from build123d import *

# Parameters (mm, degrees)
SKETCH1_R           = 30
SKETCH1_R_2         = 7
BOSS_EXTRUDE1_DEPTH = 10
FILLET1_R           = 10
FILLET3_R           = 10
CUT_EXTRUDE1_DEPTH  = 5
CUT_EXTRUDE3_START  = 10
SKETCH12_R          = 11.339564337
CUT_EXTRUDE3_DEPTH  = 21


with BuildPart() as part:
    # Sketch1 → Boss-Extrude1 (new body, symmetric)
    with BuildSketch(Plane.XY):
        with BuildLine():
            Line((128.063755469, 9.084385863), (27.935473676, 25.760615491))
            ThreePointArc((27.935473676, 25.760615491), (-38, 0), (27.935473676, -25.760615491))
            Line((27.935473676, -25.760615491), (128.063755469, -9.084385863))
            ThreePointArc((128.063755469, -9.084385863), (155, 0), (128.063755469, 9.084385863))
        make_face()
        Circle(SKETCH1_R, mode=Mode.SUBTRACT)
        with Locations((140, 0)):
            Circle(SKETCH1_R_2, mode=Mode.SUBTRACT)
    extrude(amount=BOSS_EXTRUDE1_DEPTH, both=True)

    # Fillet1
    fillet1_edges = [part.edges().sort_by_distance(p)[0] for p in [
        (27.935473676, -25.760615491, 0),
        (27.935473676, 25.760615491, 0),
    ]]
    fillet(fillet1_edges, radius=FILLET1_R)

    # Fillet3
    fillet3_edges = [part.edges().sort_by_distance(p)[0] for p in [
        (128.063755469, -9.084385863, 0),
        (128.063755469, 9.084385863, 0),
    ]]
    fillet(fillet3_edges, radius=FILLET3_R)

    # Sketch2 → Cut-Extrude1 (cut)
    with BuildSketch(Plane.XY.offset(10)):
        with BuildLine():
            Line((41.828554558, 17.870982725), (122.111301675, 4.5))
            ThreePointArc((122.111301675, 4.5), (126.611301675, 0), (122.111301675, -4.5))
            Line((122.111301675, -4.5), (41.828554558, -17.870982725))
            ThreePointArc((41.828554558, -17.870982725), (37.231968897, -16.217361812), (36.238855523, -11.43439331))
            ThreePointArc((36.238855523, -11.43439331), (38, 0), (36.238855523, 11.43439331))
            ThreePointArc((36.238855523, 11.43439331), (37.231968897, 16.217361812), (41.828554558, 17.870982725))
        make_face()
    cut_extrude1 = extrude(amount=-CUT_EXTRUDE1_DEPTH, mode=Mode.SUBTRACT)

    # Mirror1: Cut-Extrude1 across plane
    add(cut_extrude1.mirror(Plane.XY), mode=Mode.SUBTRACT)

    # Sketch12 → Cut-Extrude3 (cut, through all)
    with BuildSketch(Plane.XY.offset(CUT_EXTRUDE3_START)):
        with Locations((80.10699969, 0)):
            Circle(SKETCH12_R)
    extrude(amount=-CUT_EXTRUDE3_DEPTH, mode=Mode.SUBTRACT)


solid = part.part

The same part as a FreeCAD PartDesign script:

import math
import FreeCAD as App
import Part
import Sketcher
Q = App.Units.Quantity


def edges_at(feature, points):
    """Names of the edges that pass closest to the given points."""
    edges = feature.Shape.Edges
    near = lambda p: min(range(len(edges)), key=lambda i: edges[i].distToShape(Part.Vertex(*p))[0])
    return sorted({f"Edge{near(p) + 1}" for p in points})

doc = App.newDocument("Part")
body = doc.addObject("PartDesign::Body", "Body")

sketch1 = doc.addObject("Sketcher::SketchObject", "Sketch")
body.addObject(sketch1)
sketch1.AttachmentSupport = (doc.XY_Plane, [""])
sketch1.MapMode = "FlatFace"
sketch1.addGeometry([
    Part.LineSegment(App.Vector(128.063755, 9.084386, 0), App.Vector(27.935474, 25.760615, 0)),
    Part.ArcOfCircle(Part.Circle(App.Vector(0, 0, 0), App.Vector(0, 0, 1), 38), math.radians(42.680611), math.radians(317.319389)),
    Part.LineSegment(App.Vector(27.935474, -25.760615, 0), App.Vector(128.063755, -9.084386, 0)),
    Part.ArcOfCircle(Part.Circle(App.Vector(140, 0, 0), App.Vector(0, 0, 1), 15), math.radians(-142.726118), math.radians(142.726118)),
    Part.Circle(App.Vector(0, 0, 0), App.Vector(0, 0, 1), 30),
    Part.Circle(App.Vector(140, 0, 0), App.Vector(0, 0, 1), 7),
], False)
sketch1.addConstraint([
    Sketcher.Constraint("Coincident", 0, 2, 1, 1),
    Sketcher.Constraint("Coincident", 1, 2, 2, 1),
    Sketcher.Constraint("Coincident", 2, 2, 3, 1),
    Sketcher.Constraint("Coincident", 3, 2, 0, 1),
    Sketcher.Constraint("Coincident", 1, 3, -1, 1),
    Sketcher.Constraint("Coincident", 4, 3, -1, 1),
    Sketcher.Constraint("Coincident", 5, 3, 3, 3),
    Sketcher.Constraint("Symmetric", 2, 2, 3, 2, -1),
    Sketcher.Constraint("Vertical", 0, 2, 1, 2),
    Sketcher.Constraint("Diameter", 4, Q("60 mm")),
    Sketcher.Constraint("Diameter", 5, Q("14 mm")),
    Sketcher.Constraint("Radius", 1, Q("38 mm")),
    Sketcher.Constraint("Radius", 3, Q("15 mm")),
    Sketcher.Constraint("DistanceX", -1, 1, 3, 3, Q("140 mm")),
    Sketcher.Constraint("DistanceY", 2, 2, 0, 2, Q("34.845001 mm")),
    Sketcher.Constraint("DistanceY", 1, 2, 0, 2, Q("51.521231 mm")),
])
pad1 = doc.addObject("PartDesign::Pad", "Pad")
body.addObject(pad1)
pad1.Profile = sketch1
pad1.Length = 20
pad1.Midplane = True
doc.recompute()

fillet = doc.addObject("PartDesign::Fillet", "Fillet")
body.addObject(fillet)
fillet.Base = (pad1, edges_at(pad1, [(27.935, -25.761, 0), (27.935, 25.761, 0)]))
fillet.Radius = 10
doc.recompute()

fillet2 = doc.addObject("PartDesign::Fillet", "Fillet001")
body.addObject(fillet2)
fillet2.Base = (fillet, edges_at(fillet, [(128.064, -9.084, 0), (128.064, 9.084, 0)]))
fillet2.Radius = 10

sketch2 = doc.addObject("Sketcher::SketchObject", "Sketch001")
body.addObject(sketch2)
sketch2.AttachmentSupport = (doc.XY_Plane, [""])
sketch2.MapMode = "FlatFace"
sketch2.AttachmentOffset = App.Placement(App.Vector(0, 0, 10), App.Rotation())
sketch2.addGeometry([
    Part.LineSegment(App.Vector(122.111302, 4.5, 0), App.Vector(41.828555, 17.870983, 0)),
    Part.ArcOfCircle(Part.Circle(App.Vector(41.007126, 12.938919, 0), App.Vector(0, 0, 1), 5), math.radians(80.544257), math.radians(197.511973)),
    Part.ArcOfCircle(Part.Circle(App.Vector(0, 0, 0), App.Vector(0, 0, 1), 38), math.radians(-17.511973), math.radians(17.511973)),
    Part.ArcOfCircle(Part.Circle(App.Vector(41.007126, -12.938919, 0), App.Vector(0, 0, 1), 5), math.radians(162.488027), math.radians(279.455743)),
    Part.LineSegment(App.Vector(41.828555, -17.870983, 0), App.Vector(122.111302, -4.5, 0)),
    Part.ArcOfCircle(Part.Circle(App.Vector(122.111302, 0, 0), App.Vector(0, 0, 1), 4.5), math.radians(-90), math.radians(90)),
], False)
sketch2.addConstraint([
    Sketcher.Constraint("Tangent", 0, 2, 1, 1),
    Sketcher.Constraint("Tangent", 1, 2, 2, 2),
    Sketcher.Constraint("Tangent", 2, 1, 3, 1),
    Sketcher.Constraint("Tangent", 3, 2, 4, 1),
    Sketcher.Constraint("Coincident", 4, 2, 5, 1),
    Sketcher.Constraint("Coincident", 5, 2, 0, 1),
    Sketcher.Constraint("Coincident", 2, 3, -1, 1),
    Sketcher.Constraint("Equal", 1, 3),
    Sketcher.Constraint("Symmetric", 0, 2, 3, 2, -1),
    Sketcher.Constraint("PointOnObject", 5, 3, -1),
    Sketcher.Constraint("Vertical", 5, 3, 4, 2),
    Sketcher.Constraint("Radius", 1, Q("5 mm")),
    Sketcher.Constraint("Radius", 2, Q("38 mm")),
    Sketcher.Constraint("Radius", 5, Q("4.5 mm")),
    Sketcher.Constraint("DistanceX", -1, 1, 5, 3, Q("122.111302 mm")),
    Sketcher.Constraint("DistanceY", 3, 3, 0, 2, Q("30.809901 mm")),
])
pocket1 = doc.addObject("PartDesign::Pocket", "Pocket")
body.addObject(pocket1)
pocket1.Profile = sketch2
pocket1.Length = 5
doc.recompute()

mirrored = doc.addObject("PartDesign::Mirrored", "Mirrored")
body.addObject(mirrored)
mirrored.Originals = [pocket1]
mirrored.MirrorPlane = (doc.XY_Plane, [""])
body.Tip = mirrored

sketch3 = doc.addObject("Sketcher::SketchObject", "Sketch002")
body.addObject(sketch3)
sketch3.AttachmentSupport = (doc.XY_Plane, [""])
sketch3.MapMode = "FlatFace"
sketch3.AttachmentOffset = App.Placement(App.Vector(0, 0, 10), App.Rotation())
sketch3.addGeometry(Part.Circle(App.Vector(80.107, 0, 0), App.Vector(0, 0, 1), 11.339564), False)
sketch3.addConstraint([
    Sketcher.Constraint("PointOnObject", 0, 3, -1),
    Sketcher.Constraint("Diameter", 0, Q("22.679129 mm")),
    Sketcher.Constraint("DistanceX", -1, 1, 0, 3, Q("80.107 mm")),
])
pocket2 = doc.addObject("PartDesign::Pocket", "Pocket001")
body.addObject(pocket2)
pocket2.Profile = sketch3
pocket2.Type = "ThroughAll"

doc.recompute()
